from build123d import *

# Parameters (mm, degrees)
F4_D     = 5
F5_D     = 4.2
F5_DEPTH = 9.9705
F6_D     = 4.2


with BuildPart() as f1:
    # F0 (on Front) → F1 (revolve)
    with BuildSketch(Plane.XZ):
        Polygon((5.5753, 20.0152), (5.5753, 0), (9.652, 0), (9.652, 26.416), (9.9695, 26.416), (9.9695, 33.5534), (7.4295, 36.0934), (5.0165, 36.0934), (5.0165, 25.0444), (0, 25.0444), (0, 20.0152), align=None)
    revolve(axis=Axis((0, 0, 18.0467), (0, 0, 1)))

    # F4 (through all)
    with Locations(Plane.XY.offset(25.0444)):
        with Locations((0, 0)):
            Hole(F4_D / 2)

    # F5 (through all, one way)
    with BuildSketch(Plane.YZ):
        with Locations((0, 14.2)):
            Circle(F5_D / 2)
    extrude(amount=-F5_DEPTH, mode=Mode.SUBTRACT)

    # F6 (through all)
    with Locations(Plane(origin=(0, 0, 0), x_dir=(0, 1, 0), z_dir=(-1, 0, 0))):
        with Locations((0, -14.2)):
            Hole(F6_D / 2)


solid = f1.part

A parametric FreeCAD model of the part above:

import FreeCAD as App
import Part
import Sketcher
from FreeCAD import Vector
Q = App.Units.Quantity

doc = App.newDocument("Part")
body = doc.addObject("PartDesign::Body", "Body")

# Sketch on XZ plane
sketch1 = body.newObject("Sketcher::SketchObject", "Sketch")
sketch1.AttachmentSupport = (doc.getObject("XZ_Plane"), [""])
sketch1.MapMode = "FlatFace"
sketch1.addGeometry([
    Part.LineSegment(Vector(5.58, 20.02, 0), Vector(5.58, 0, 0)),  # 0
    Part.LineSegment(Vector(5.58, 0, 0), Vector(9.65, 0, 0)),  # 1
    Part.LineSegment(Vector(9.65, 0, 0), Vector(9.65, 26.42, 0)),  # 2
    Part.LineSegment(Vector(9.65, 26.42, 0), Vector(9.97, 26.42, 0)),  # 3
    Part.LineSegment(Vector(9.97, 26.42, 0), Vector(9.97, 33.55, 0)),  # 4
    Part.LineSegment(Vector(9.97, 33.55, 0), Vector(7.43, 36.09, 0)),  # 5
    Part.LineSegment(Vector(7.43, 36.09, 0), Vector(5.02, 36.09, 0)),  # 6
    Part.LineSegment(Vector(5.02, 36.09, 0), Vector(5.02, 25.04, 0)),  # 7
    Part.LineSegment(Vector(5.02, 25.04, 0), Vector(0, 25.04, 0)),  # 8
    Part.LineSegment(Vector(0, 25.04, 0), Vector(0, 20.02, 0)),  # 9
    Part.LineSegment(Vector(0, 20.02, 0), Vector(5.58, 20.02, 0)),  # 10
], False)
sketch1.addConstraint([
    Sketcher.Constraint("Coincident", 0, 2, 1, 1),
    Sketcher.Constraint("Coincident", 1, 2, 2, 1),
    Sketcher.Constraint("Coincident", 2, 2, 3, 1),
    Sketcher.Constraint("Coincident", 3, 2, 4, 1),
    Sketcher.Constraint("Coincident", 4, 2, 5, 1),
    Sketcher.Constraint("Coincident", 5, 2, 6, 1),
    Sketcher.Constraint("Coincident", 6, 2, 7, 1),
    Sketcher.Constraint("Coincident", 7, 2, 8, 1),
    Sketcher.Constraint("Coincident", 8, 2, 9, 1),
    Sketcher.Constraint("Coincident", 9, 2, 10, 1),
    Sketcher.Constraint("Coincident", 10, 2, 0, 1),
    Sketcher.Constraint("Vertical", 0),
    Sketcher.Constraint("Horizontal", 1),
    Sketcher.Constraint("Vertical", 2),
    Sketcher.Constraint("Horizontal", 3),
    Sketcher.Constraint("Vertical", 4),
    Sketcher.Constraint("Horizontal", 6),
    Sketcher.Constraint("Vertical", 7),
    Sketcher.Constraint("Horizontal", 8),
    Sketcher.Constraint("Vertical", 9),
    Sketcher.Constraint("Horizontal", 10),
    Sketcher.Constraint("PointOnObject", 0, 2, -1),
    Sketcher.Constraint("PointOnObject", 8, 2, -2),
    Sketcher.Constraint("Angle", 5, Q("135 deg")),
    Sketcher.Constraint("DistanceY", 2, 1, 2, 2, Q("1.04 in")),
    Sketcher.Constraint("DistanceX", 5, 2, 4, 2, Q("0.1 in")),
    Sketcher.Constraint("DistanceX", 6, 2, 6, 1, Q("0.095 in")),
    Sketcher.Constraint("DistanceY", 0, 2, 0, 1, Q("0.788 in")),
    Sketcher.Constraint("DistanceY", 4, 1, 4, 2, Q("0.281 in")),
    Sketcher.Constraint("DistanceY", 7, 2, 7, 1, Q("0.435 in")),
    Sketcher.Constraint("DistanceX", -1, 1, 1, 2, Q("0.38 in")),
    Sketcher.Constraint("DistanceX", 1, 1, 1, 2, Q("0.1605 in")),
    Sketcher.Constraint("DistanceX", 3, 1, 3, 2, Q("0.0125 in")),
])
revolution = body.newObject("PartDesign::Revolution", "Revolution")
revolution.Profile = sketch1
revolution.ReferenceAxis = (sketch1, ["V_Axis"])
revolution.Angle = 360

# Sketch on XY plane
sketch2 = body.newObject("Sketcher::SketchObject", "Sketch001")
sketch2.AttachmentSupport = (doc.getObject("XY_Plane"), [""])
sketch2.MapMode = "FlatFace"
sketch2.AttachmentOffset = App.Placement(Vector(0, 0, 0.986 * 25.4), App.Rotation())
sketch2.addGeometry(Part.Circle(Vector(0, 0, 0), Vector(0, 0, 1), 2.5), False)
sketch2.addConstraint([
    Sketcher.Constraint("Coincident", 0, 3, -1, 1),
    Sketcher.Constraint("Diameter", 0, 5.0),
])
doc.recompute()
hole = body.newObject("PartDesign::Hole", "Hole")
hole.Profile = sketch2
hole.ThreadType = "None"
hole.Diameter = 5
hole.DepthType = "ThroughAll"

# Sketch on YZ plane
sketch3 = body.newObject("Sketcher::SketchObject", "Sketch002")
sketch3.AttachmentSupport = (doc.getObject("YZ_Plane"), [""])
sketch3.MapMode = "FlatFace"
sketch3.addGeometry(Part.Circle(Vector(0, 14.2, 0), Vector(0, 0, 1), 2.1), False)
sketch3.addConstraint([
    Sketcher.Constraint("PointOnObject", 0, 3, -2),
    Sketcher.Constraint("Diameter", 0, 4.2),
    Sketcher.Constraint("DistanceY", -1, 1, 0, 3, 14.2),
])
pocket1 = body.newObject("PartDesign::Pocket", "Pocket")
pocket1.Profile = sketch3
pocket1.Type = "ThroughAll"

# Sketch on YZ plane
sketch4 = body.newObject("Sketcher::SketchObject", "Sketch003")
sketch4.AttachmentSupport = (doc.getObject("YZ_Plane"), [""])
sketch4.MapMode = "FlatFace"
sketch4.addGeometry(Part.Circle(Vector(0, 14.2, 0), Vector(0, 0, 1), 2.1), False)
sketch4.addConstraint([
    Sketcher.Constraint("PointOnObject", 0, 3, -2),
    Sketcher.Constraint("Diameter", 0, 4.2),
    Sketcher.Constraint("DistanceY", -1, 1, 0, 3, 14.2),
])
doc.recompute()
hole2 = body.newObject("PartDesign::Hole", "Hole001")
hole2.Profile = sketch4
hole2.ThreadType = "None"
hole2.Diameter = 4.2
hole2.DepthType = "ThroughAll"
hole2.Reversed = True

doc.recompute()
